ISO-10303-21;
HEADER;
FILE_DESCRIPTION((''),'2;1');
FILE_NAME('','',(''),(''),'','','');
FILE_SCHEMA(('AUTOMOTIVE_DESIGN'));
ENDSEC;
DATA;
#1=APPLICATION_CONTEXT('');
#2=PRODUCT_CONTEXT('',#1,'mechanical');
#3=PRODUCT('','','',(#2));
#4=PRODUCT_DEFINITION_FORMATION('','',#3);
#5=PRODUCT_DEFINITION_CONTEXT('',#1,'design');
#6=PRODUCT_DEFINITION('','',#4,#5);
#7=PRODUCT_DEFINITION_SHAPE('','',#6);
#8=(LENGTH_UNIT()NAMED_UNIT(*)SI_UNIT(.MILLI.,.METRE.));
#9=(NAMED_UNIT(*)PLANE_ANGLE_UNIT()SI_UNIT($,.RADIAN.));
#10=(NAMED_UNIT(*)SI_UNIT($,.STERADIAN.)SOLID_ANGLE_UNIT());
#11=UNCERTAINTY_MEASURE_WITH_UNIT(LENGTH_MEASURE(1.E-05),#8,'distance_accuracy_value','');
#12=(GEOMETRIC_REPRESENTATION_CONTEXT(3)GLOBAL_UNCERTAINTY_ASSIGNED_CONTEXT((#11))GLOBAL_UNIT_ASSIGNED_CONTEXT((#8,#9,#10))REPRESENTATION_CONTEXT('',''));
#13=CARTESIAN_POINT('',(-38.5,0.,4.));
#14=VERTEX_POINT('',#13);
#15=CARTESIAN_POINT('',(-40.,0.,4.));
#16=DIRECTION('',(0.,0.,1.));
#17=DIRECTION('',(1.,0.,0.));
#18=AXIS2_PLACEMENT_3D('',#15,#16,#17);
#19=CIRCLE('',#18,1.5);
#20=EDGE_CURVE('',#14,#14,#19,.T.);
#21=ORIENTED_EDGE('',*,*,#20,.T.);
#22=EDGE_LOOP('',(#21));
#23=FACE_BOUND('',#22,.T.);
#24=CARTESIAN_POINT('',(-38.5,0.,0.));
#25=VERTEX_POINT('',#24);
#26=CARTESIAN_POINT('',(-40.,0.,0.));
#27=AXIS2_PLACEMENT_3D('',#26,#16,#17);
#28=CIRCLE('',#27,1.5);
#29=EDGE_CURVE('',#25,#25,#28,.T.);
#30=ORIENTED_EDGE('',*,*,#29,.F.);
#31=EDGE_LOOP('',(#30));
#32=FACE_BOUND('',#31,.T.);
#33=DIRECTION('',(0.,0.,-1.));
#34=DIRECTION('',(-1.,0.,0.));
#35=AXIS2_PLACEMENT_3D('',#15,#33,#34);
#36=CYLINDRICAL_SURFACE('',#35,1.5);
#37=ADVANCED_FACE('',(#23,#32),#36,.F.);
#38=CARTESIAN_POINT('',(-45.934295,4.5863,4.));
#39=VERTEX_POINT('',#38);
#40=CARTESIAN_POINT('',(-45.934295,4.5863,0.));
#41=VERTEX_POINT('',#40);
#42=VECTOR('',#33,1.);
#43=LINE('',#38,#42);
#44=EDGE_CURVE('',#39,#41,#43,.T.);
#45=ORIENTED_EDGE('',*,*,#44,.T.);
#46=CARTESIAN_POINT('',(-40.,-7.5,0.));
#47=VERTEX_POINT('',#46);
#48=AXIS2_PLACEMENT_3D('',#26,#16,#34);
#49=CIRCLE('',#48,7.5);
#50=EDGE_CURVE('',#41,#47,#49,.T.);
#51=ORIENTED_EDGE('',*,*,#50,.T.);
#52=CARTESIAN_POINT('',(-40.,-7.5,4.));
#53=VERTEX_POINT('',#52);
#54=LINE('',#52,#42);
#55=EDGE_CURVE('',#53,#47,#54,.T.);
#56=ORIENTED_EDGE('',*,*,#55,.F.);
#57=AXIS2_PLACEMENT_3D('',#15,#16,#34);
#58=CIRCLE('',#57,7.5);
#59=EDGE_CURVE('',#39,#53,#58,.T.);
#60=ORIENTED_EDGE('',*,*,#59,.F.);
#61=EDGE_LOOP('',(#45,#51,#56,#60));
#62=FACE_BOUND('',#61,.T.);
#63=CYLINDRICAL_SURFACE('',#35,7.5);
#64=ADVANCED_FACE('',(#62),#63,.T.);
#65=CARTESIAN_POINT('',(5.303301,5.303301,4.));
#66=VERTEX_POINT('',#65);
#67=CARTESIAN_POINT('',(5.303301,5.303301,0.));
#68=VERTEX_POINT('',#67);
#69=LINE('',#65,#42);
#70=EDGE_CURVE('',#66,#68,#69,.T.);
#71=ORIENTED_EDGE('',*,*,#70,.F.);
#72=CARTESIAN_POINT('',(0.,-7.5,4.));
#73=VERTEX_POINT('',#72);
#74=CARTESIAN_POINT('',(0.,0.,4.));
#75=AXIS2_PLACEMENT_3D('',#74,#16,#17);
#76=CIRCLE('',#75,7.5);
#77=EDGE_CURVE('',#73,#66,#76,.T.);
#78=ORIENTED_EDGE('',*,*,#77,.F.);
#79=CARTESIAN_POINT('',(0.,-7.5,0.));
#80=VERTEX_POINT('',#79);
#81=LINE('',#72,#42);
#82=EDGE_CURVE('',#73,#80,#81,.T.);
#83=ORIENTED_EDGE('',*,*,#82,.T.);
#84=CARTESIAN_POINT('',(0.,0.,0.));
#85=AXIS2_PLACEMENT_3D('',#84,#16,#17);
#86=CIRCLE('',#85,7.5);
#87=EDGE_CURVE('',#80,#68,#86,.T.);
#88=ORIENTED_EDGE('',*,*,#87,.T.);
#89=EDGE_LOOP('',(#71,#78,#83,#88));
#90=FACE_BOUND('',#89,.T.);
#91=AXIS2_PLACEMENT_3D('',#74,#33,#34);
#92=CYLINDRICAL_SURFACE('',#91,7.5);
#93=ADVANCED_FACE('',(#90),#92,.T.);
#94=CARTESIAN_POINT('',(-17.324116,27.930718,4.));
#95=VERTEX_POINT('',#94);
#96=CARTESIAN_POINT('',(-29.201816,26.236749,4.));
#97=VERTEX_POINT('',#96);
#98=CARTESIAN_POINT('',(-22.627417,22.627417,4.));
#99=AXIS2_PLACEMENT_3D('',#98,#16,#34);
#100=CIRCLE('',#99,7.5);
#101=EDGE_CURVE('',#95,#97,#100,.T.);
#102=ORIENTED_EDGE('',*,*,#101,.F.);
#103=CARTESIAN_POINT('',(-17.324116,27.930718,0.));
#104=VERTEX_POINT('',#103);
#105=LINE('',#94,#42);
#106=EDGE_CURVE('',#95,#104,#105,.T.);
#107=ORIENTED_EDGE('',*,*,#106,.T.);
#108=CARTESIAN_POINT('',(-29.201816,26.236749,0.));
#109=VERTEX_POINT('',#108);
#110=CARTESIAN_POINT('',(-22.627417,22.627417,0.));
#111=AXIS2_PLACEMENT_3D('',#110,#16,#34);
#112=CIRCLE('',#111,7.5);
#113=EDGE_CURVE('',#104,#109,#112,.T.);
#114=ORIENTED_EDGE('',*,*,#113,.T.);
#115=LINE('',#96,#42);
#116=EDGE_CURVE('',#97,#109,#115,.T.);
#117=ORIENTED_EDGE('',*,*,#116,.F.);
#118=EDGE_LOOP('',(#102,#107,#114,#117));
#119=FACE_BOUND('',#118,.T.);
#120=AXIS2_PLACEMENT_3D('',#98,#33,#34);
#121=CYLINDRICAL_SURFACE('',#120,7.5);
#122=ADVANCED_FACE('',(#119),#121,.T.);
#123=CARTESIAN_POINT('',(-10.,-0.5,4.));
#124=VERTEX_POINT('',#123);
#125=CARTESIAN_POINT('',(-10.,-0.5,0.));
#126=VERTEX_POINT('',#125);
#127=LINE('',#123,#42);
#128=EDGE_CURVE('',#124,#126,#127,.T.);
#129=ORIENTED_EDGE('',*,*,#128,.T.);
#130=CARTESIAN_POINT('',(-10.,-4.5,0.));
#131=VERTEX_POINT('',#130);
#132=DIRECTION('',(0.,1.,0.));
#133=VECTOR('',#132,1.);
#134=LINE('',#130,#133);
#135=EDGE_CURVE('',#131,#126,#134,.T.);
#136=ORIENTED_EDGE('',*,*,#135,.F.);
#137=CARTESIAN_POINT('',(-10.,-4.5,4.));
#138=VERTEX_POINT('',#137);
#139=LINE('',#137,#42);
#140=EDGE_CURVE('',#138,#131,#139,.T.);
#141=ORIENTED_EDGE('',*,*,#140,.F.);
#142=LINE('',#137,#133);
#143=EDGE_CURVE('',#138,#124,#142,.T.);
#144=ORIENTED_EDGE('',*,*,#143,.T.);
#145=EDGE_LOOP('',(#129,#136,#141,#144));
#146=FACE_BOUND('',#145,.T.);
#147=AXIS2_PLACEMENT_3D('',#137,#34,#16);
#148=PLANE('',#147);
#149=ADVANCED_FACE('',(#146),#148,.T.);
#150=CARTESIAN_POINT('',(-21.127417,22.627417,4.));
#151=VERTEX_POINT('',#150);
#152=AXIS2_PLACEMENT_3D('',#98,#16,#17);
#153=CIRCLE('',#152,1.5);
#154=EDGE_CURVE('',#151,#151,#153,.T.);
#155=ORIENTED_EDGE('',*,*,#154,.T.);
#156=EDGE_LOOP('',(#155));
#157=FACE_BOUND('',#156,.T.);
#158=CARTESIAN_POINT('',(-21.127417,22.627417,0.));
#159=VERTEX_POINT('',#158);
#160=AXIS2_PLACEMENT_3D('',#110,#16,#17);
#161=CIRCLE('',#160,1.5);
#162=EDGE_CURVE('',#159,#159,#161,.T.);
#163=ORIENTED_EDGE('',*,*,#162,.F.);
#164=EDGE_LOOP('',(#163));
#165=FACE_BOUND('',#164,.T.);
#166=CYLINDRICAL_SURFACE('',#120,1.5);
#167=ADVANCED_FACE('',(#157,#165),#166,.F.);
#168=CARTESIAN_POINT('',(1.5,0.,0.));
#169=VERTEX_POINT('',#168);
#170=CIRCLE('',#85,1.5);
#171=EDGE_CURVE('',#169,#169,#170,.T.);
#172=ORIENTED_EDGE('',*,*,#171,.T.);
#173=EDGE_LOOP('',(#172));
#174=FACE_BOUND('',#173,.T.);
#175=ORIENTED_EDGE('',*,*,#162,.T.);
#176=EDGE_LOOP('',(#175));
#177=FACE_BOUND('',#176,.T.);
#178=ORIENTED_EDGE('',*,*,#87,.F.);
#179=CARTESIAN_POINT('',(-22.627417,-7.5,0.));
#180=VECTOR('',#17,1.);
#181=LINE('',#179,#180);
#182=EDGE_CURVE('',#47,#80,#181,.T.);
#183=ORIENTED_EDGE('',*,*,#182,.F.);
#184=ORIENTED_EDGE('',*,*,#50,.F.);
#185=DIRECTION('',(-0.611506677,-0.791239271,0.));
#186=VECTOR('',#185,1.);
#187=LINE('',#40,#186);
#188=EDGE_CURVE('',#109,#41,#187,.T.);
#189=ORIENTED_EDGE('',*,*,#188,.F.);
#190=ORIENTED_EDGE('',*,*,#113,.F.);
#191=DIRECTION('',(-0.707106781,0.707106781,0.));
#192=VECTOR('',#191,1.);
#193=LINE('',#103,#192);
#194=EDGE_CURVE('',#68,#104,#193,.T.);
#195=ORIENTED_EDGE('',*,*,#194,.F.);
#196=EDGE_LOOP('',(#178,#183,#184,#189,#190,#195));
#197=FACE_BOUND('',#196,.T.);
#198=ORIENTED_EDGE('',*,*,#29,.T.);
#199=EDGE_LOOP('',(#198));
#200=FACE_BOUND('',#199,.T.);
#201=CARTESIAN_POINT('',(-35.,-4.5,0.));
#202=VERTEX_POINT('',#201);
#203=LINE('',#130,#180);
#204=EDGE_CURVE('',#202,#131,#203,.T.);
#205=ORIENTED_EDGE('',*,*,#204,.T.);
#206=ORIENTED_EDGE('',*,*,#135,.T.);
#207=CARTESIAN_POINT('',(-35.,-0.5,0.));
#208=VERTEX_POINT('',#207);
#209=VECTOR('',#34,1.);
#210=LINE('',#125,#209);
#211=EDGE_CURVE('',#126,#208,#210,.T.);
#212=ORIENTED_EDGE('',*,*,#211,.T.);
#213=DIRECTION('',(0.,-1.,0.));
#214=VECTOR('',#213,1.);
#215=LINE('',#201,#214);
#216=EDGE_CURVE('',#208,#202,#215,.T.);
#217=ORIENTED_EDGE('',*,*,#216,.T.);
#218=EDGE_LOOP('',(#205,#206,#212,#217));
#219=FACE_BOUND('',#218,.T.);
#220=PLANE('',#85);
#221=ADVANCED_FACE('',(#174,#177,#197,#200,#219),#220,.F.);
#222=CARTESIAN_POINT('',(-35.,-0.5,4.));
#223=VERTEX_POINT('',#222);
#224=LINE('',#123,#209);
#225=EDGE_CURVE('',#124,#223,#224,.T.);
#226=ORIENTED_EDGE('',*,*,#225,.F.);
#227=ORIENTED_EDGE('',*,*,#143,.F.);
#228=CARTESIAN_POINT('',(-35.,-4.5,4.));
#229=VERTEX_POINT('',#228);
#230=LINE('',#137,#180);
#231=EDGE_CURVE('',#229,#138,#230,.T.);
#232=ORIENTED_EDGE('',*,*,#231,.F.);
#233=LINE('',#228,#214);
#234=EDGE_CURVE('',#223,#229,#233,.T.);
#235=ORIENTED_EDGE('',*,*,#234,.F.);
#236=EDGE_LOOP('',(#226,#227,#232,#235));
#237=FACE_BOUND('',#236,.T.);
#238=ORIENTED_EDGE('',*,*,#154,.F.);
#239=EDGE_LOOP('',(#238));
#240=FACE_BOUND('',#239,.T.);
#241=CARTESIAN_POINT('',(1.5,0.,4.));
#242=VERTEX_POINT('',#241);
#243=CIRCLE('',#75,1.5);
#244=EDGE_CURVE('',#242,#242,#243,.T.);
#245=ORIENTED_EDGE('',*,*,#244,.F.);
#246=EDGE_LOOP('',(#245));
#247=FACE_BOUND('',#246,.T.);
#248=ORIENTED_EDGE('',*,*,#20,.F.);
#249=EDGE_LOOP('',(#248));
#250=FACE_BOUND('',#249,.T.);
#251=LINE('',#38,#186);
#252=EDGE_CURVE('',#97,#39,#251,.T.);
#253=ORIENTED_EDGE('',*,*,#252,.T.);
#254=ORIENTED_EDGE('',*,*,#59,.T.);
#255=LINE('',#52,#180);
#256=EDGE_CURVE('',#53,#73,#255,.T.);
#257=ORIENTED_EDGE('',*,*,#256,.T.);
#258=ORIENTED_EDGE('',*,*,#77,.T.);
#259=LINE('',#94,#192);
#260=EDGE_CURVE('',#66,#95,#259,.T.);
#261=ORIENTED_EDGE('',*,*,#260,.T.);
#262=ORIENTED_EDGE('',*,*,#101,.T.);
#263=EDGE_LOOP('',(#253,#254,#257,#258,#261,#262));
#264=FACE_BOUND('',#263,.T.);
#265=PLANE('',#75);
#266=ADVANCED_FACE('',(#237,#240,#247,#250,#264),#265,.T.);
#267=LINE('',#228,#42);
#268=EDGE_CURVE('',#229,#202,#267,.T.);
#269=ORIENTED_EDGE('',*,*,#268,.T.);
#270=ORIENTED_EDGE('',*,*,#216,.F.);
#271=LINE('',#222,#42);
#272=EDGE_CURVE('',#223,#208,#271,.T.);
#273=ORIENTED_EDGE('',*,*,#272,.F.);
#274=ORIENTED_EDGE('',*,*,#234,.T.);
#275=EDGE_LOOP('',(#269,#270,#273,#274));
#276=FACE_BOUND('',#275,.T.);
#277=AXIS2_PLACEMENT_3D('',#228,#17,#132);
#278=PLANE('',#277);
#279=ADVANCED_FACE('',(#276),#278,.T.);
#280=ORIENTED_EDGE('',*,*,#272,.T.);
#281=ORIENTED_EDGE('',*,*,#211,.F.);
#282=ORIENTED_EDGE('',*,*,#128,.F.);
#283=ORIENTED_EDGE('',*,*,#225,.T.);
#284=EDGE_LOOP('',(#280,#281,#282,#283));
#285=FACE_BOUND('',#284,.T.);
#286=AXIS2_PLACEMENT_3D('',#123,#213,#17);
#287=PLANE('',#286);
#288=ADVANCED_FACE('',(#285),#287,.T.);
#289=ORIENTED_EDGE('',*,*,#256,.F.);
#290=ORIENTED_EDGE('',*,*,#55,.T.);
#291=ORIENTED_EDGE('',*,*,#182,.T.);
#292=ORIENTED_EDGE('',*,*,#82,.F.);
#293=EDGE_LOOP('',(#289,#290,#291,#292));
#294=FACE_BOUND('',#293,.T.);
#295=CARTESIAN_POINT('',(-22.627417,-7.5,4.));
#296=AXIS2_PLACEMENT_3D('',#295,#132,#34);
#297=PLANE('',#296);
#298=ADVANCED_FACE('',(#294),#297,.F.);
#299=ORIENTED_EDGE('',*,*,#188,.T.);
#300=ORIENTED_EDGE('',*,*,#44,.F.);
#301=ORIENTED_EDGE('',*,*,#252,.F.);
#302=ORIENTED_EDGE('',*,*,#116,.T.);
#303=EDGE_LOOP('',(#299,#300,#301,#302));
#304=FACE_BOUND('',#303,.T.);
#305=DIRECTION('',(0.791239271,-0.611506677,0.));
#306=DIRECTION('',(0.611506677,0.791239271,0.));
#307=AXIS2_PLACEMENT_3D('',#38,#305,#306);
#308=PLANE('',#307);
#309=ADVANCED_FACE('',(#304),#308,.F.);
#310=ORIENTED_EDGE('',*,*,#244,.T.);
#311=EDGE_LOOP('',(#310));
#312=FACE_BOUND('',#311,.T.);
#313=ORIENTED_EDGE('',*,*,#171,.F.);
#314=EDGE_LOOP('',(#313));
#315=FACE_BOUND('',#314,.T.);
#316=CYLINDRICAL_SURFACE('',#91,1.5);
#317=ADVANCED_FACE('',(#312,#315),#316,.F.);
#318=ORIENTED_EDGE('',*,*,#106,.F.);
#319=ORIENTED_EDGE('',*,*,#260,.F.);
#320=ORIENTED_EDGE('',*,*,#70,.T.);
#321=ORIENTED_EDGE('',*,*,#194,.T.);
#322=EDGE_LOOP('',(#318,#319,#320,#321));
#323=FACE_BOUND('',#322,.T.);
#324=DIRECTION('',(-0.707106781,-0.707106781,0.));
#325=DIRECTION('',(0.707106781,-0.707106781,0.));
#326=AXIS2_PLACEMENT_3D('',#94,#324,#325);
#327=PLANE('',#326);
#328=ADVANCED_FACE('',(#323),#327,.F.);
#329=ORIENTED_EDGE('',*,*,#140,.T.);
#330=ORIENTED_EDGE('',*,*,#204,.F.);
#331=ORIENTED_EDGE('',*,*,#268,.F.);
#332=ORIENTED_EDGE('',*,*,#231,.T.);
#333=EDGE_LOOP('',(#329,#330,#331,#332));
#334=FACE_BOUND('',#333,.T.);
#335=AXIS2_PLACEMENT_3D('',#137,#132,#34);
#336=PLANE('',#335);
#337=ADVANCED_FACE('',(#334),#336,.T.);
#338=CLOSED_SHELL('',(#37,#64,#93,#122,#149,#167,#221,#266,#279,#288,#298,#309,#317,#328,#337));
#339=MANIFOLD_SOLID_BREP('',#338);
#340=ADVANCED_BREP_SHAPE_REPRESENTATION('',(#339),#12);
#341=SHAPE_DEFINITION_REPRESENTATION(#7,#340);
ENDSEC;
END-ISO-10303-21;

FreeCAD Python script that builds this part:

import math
import FreeCAD as App
import Part
import Sketcher

V = App.Vector
Q = App.Units.Quantity

doc = App.newDocument("Part")
body = doc.addObject("PartDesign::Body", "Body")

# Sketch on XY plane
sketch1 = body.newObject("Sketcher::SketchObject", "Sketch")
sketch1.AttachmentSupport = (doc.getObject("XY_Plane"), [""])
sketch1.MapMode = "FlatFace"
sketch1.addGeometry([
    Part.ArcOfCircle(Part.Circle(V(0, 0, 0), V(0, 0, 1), 7.5), math.radians(-90), math.radians(45)),  # 0
    Part.LineSegment(V(5.3, 5.3, 0), V(-17.3, 27.9, 0)),  # 1
    Part.ArcOfCircle(Part.Circle(V(-22.6, 22.6, 0), V(0, 0, 1), 7.5), math.radians(45), math.radians(151)),  # 2
    Part.LineSegment(V(-29.2, 26.2, 0), V(-45.9, 4.6, 0)),  # 3
    Part.ArcOfCircle(Part.Circle(V(-40, 0, 0), V(0, 0, 1), 7.5), math.radians(142), math.radians(270)),  # 4
    Part.LineSegment(V(-40, -7.5, 0), V(0, -7.5, 0)),  # 5
    Part.Circle(V(-40, 0, 0), V(0, 0, 1), 1.5),  # 6
    Part.LineSegment(V(-10, -4.5, 0), V(-35, -4.5, 0)),  # 7
    Part.LineSegment(V(-35, -4.5, 0), V(-35, -0.5, 0)),  # 8
    Part.LineSegment(V(-35, -0.5, 0), V(-10, -0.5, 0)),  # 9
    Part.LineSegment(V(-10, -0.5, 0), V(-10, -4.5, 0)),  # 10
    Part.Circle(V(0, 0, 0), V(0, 0, 1), 1.5),  # 11
    Part.Circle(V(-22.6, 22.6, 0), V(0, 0, 1), 1.5),  # 12
], False)
sketch1.addConstraint([
    Sketcher.Constraint("Tangent", 0, 2, 1, 1),
    Sketcher.Constraint("Tangent", 1, 2, 2, 1),
    Sketcher.Constraint("Coincident", 2, 2, 3, 1),
    Sketcher.Constraint("Tangent", 3, 2, 4, 1),
    Sketcher.Constraint("Tangent", 4, 2, 5, 1),
    Sketcher.Constraint("Tangent", 5, 2, 0, 1),
    Sketcher.Constraint("Coincident", 7, 2, 8, 1),
    Sketcher.Constraint("Coincident", 8, 2, 9, 1),
    Sketcher.Constraint("Coincident", 9, 2, 10, 1),
    Sketcher.Constraint("Coincident", 10, 2, 7, 1),
    Sketcher.Constraint("Horizontal", 5),
    Sketcher.Constraint("Horizontal", 7),
    Sketcher.Constraint("Vertical", 8),
    Sketcher.Constraint("Horizontal", 9),
    Sketcher.Constraint("Vertical", 10),
    Sketcher.Constraint("Coincident", 0, 3, -1, 1),
    Sketcher.Constraint("Coincident", 11, 3, -1, 1),
    Sketcher.Constraint("Coincident", 6, 3, 4, 3),
    Sketcher.Constraint("Coincident", 12, 3, 2, 3),
    Sketcher.Constraint("Equal", 0, 2),
    Sketcher.Constraint("Equal", 2, 4),
    Sketcher.Constraint("Equal", 6, 11),
    Sketcher.Constraint("Equal", 11, 12),
    Sketcher.Constraint("Diameter", 6, 3.0),
    Sketcher.Constraint("Radius", 0, 7.5),
    Sketcher.Constraint("DistanceX", 5, 1, 5, 2, 40.0),
    Sketcher.Constraint("DistanceX", 7, 2, 7, 1, 25.0),
    Sketcher.Constraint("DistanceY", 8, 1, 8, 2, 4.0),
    Sketcher.Constraint("Angle", 1, Q("135 deg")),
    Sketcher.Constraint("Distance", 1, 32.0),
    Sketcher.Constraint("DistanceX", 7, 2, -1, 1, 35.0),
    Sketcher.Constraint("DistanceY", 4, 2, 7, 2, 3.0),
    Sketcher.Constraint("DistanceY", -1, 1, 3, 2, 4.5863),
])
pad1 = body.newObject("PartDesign::Pad", "Pad")
pad1.Profile = sketch1
pad1.Length = 4

doc.recompute()
